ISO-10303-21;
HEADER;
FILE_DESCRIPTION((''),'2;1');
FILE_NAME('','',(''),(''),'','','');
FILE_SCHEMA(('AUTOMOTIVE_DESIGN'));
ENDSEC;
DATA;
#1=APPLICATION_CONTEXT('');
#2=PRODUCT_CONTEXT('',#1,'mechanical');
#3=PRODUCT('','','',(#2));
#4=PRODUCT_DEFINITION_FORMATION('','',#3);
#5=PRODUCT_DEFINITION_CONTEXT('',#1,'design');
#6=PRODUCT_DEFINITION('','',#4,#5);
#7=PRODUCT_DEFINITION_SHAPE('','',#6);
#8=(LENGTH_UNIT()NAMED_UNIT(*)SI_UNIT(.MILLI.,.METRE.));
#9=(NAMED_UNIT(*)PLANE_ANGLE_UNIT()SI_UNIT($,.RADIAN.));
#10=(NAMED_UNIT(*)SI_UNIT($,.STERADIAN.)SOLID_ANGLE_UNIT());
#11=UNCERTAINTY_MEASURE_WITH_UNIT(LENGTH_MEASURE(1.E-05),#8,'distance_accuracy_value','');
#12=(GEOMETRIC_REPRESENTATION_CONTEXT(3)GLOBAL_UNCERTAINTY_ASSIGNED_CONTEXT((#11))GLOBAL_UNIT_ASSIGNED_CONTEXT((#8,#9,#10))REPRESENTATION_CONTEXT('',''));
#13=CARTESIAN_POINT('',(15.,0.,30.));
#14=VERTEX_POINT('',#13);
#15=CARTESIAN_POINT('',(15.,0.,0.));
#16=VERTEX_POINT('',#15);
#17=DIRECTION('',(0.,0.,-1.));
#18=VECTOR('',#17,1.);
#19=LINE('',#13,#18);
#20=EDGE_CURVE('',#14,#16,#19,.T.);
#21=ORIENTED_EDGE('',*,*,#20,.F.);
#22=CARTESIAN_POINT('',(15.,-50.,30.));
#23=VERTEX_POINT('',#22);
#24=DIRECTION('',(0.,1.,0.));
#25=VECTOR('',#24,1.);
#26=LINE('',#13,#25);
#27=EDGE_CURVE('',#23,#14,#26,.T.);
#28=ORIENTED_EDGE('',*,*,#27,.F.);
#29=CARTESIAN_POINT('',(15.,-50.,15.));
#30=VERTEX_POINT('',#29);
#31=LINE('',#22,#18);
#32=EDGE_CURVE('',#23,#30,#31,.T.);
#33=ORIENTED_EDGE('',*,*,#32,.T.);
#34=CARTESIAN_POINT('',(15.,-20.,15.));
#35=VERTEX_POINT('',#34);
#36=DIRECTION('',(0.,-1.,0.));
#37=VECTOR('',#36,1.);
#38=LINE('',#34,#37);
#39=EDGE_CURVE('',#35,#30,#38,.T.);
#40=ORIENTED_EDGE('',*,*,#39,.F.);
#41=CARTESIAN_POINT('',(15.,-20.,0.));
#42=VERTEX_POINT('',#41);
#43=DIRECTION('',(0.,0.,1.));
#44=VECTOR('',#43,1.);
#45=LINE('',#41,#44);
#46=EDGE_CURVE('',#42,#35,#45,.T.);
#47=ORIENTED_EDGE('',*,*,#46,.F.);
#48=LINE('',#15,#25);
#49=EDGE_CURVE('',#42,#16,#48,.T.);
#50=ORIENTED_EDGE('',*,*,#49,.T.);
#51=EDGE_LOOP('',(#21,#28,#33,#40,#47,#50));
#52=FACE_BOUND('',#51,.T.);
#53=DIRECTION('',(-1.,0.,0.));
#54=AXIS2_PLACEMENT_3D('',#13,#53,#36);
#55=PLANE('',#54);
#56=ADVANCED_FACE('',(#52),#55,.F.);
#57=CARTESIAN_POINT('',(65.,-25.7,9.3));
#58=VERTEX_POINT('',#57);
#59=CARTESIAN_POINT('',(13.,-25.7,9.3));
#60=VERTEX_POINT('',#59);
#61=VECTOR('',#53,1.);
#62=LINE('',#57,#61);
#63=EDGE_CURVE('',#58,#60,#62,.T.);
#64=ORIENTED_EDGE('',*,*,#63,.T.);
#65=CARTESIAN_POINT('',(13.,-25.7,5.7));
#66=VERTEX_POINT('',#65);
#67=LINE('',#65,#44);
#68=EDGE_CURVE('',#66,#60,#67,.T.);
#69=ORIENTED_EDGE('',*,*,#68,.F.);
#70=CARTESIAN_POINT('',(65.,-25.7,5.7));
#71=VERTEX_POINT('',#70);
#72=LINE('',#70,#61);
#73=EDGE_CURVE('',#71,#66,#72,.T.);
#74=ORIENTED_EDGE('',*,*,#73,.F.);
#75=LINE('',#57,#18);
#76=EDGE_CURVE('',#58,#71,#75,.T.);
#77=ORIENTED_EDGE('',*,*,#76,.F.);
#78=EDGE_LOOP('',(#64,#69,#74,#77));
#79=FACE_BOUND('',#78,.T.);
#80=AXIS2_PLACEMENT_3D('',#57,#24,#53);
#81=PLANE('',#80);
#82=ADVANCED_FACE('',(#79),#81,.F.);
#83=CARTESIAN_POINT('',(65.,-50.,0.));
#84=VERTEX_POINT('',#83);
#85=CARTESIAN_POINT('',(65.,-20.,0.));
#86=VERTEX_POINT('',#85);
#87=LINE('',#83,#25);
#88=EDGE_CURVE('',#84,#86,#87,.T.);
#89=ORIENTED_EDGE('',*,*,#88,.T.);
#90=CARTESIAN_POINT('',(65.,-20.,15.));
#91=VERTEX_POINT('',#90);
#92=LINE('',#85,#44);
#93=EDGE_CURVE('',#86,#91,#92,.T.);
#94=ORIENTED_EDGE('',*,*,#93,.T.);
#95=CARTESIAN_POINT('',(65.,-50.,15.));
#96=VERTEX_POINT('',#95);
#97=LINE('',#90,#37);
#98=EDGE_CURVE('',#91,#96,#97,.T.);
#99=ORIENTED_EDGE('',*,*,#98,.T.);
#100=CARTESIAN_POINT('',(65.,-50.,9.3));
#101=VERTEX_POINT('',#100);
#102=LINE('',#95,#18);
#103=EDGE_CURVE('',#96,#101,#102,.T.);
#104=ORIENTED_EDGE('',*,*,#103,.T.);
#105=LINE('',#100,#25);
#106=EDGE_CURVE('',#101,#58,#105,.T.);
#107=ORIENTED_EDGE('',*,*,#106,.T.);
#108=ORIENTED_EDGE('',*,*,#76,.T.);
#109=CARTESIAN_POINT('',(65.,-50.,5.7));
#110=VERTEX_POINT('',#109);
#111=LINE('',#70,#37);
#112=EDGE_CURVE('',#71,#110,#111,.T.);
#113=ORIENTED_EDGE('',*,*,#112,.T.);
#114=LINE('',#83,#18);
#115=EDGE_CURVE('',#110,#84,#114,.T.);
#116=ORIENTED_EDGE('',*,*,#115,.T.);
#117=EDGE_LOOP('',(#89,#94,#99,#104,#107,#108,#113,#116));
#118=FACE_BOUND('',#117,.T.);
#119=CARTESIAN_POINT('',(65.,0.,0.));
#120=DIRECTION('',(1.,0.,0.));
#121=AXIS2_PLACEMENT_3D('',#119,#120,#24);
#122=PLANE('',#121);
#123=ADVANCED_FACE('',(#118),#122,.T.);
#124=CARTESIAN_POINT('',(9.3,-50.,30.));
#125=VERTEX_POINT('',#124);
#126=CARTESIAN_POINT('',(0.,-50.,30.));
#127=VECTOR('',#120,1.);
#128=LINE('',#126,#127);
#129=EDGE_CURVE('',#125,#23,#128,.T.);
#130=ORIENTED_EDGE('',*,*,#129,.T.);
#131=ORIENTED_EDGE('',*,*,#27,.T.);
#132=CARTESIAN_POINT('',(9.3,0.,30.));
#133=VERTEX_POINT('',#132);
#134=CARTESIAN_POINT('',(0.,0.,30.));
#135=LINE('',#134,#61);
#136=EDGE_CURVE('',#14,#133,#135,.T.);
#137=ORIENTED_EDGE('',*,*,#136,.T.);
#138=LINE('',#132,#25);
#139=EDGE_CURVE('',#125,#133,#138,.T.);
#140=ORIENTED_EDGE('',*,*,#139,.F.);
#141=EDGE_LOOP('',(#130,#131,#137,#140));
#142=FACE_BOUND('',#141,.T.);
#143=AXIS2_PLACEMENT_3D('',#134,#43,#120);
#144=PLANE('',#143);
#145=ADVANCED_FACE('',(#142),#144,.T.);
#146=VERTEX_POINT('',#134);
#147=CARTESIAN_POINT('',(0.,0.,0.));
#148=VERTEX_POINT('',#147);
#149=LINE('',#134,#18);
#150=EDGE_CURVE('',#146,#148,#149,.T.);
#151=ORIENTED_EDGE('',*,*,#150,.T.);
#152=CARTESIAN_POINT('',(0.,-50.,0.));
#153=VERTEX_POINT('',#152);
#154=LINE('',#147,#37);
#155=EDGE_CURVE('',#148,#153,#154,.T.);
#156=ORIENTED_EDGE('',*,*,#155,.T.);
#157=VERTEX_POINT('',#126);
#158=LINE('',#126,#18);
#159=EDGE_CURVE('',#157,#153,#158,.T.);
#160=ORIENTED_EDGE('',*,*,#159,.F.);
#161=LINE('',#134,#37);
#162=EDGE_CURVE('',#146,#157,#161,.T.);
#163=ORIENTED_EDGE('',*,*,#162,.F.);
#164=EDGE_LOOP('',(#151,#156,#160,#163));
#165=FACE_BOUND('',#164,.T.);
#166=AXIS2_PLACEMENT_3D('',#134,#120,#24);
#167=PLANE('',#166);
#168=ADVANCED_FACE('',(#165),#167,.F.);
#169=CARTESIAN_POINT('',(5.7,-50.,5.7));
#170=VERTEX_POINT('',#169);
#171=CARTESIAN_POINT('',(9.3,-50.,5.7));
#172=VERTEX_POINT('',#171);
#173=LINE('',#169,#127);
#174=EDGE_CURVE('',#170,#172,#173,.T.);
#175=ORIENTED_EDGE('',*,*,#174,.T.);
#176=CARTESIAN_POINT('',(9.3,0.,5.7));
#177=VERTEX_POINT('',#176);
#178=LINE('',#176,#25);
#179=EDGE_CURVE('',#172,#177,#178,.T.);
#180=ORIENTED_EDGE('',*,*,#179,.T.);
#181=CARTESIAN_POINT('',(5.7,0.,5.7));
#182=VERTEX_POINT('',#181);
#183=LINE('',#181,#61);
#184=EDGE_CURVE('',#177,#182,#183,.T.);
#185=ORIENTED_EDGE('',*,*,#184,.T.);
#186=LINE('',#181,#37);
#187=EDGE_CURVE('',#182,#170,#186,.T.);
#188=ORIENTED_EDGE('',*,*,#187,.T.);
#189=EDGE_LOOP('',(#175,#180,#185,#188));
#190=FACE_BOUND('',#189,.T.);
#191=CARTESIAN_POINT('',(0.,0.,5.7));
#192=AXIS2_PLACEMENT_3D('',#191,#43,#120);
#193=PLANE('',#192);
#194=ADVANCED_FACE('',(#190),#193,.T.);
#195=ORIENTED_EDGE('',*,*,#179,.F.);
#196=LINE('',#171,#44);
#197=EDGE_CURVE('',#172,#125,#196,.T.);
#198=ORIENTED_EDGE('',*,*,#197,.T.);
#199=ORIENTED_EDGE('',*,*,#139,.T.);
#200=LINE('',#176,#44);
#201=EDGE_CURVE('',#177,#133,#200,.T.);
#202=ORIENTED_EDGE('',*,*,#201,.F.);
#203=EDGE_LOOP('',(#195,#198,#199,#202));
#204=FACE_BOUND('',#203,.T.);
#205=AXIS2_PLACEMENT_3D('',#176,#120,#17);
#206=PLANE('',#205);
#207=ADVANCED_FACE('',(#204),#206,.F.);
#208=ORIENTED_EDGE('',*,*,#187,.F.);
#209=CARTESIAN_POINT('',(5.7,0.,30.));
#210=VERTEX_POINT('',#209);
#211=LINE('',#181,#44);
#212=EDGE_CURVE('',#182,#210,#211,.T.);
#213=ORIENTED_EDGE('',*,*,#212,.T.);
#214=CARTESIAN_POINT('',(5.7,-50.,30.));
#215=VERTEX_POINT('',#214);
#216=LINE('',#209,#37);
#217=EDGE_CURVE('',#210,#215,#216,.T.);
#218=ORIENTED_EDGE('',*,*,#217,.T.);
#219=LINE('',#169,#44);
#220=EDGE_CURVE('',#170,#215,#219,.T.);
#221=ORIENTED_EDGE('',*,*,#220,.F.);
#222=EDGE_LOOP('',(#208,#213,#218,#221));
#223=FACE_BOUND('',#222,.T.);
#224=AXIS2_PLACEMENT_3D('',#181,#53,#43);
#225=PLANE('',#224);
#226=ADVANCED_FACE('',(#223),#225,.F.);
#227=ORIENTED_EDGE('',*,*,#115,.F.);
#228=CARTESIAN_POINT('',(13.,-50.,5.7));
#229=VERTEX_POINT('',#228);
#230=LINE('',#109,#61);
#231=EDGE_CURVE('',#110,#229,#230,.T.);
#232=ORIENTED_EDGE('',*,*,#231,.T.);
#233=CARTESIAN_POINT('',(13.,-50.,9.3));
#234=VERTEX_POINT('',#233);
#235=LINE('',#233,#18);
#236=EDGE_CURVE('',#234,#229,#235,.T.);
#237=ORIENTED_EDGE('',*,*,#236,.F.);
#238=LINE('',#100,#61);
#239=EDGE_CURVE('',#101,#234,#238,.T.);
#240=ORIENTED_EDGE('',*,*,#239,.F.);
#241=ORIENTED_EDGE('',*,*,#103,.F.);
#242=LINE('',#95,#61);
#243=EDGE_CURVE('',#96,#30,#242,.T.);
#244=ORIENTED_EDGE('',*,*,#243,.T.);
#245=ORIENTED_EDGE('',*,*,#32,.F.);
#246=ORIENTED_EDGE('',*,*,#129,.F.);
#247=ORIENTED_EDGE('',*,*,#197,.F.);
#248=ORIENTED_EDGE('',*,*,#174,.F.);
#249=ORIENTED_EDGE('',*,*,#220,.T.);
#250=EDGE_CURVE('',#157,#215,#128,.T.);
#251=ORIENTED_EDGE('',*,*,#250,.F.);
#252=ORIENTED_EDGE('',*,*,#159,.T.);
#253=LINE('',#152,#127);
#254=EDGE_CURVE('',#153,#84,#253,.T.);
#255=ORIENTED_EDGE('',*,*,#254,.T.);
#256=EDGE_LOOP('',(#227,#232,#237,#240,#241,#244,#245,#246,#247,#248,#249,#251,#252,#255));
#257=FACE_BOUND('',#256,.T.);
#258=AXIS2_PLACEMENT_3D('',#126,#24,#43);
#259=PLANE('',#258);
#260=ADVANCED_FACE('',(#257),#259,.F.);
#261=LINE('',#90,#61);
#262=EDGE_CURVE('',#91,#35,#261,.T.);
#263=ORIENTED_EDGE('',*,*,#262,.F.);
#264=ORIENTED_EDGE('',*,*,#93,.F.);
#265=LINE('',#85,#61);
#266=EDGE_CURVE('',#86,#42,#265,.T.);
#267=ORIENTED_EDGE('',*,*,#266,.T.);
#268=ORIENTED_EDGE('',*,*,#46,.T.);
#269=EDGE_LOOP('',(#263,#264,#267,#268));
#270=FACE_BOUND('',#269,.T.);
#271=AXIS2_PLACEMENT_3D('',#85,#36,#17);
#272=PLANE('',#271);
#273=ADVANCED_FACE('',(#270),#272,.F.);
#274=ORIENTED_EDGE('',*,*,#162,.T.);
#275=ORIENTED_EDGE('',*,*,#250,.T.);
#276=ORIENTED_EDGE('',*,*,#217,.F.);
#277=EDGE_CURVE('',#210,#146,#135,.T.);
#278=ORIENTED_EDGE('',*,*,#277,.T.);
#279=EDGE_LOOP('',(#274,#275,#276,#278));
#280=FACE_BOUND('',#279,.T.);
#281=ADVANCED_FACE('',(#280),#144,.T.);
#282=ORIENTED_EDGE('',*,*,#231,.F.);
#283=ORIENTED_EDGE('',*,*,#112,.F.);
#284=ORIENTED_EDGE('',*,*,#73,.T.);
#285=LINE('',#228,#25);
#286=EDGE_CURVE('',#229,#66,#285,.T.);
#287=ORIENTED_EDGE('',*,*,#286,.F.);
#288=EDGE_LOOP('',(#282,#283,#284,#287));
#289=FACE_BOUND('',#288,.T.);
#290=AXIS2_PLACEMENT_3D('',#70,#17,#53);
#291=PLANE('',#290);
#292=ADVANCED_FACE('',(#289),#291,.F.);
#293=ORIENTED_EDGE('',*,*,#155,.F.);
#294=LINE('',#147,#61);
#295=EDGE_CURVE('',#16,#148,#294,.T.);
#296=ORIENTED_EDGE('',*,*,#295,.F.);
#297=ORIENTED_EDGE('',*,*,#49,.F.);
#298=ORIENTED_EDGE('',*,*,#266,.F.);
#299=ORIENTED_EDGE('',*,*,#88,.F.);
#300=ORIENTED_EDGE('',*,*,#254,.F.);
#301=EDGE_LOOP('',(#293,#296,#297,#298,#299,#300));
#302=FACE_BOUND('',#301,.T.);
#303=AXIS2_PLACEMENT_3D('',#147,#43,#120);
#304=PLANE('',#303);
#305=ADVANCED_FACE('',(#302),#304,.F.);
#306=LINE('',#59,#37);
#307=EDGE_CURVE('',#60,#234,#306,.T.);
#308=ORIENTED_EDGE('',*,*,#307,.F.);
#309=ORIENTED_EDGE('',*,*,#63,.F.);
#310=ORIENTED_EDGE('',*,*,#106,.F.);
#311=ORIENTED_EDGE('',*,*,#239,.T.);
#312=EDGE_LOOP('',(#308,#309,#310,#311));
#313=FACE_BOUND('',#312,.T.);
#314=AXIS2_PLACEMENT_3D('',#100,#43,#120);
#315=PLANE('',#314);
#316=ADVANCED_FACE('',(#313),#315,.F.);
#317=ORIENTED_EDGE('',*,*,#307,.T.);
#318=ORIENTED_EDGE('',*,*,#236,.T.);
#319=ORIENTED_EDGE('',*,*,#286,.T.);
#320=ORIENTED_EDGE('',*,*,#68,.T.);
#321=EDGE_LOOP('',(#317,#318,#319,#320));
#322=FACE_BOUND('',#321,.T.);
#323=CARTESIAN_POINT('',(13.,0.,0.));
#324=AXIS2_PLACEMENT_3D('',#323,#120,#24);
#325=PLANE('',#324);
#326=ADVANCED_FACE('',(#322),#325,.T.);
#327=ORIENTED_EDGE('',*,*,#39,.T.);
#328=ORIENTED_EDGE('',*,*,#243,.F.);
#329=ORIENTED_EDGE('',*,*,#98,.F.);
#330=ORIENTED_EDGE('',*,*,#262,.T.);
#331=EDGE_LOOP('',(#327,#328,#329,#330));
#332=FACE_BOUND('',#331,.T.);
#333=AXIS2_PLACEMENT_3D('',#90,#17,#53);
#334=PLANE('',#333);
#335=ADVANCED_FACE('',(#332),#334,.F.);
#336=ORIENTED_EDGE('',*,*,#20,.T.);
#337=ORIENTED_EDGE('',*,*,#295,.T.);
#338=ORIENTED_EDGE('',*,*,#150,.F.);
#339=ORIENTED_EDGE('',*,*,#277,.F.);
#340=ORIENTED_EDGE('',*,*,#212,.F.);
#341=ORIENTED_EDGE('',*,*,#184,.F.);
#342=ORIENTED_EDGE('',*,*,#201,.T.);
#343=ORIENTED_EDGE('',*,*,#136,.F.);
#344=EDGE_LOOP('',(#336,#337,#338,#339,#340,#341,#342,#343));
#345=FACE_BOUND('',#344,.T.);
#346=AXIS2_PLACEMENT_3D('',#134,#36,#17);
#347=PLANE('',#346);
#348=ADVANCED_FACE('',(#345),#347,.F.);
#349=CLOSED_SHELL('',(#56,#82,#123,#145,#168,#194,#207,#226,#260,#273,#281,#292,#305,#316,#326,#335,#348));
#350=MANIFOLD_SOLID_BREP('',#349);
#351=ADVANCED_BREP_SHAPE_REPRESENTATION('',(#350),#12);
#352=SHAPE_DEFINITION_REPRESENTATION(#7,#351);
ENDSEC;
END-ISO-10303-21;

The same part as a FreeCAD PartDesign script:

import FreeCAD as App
import Part
import Sketcher

V = App.Vector


def add_polygon(sketch, points):
    """Adds a closed chain of lines whose ends are joined by coincident constraints."""
    first, n = sketch.GeometryCount, len(points)
    for a, b in zip(points, points[1:] + points[:1]):
        sketch.addGeometry(Part.LineSegment(App.Vector(*a, 0), App.Vector(*b, 0)), False)
    for i in range(n):
        sketch.addConstraint(Sketcher.Constraint("Coincident", first + i, 2, first + (i + 1) % n, 1))

doc = App.newDocument("Part")
body = doc.addObject("PartDesign::Body", "Body")

sketch1 = body.newObject("Sketcher::SketchObject", "Sketch")
sketch1.AttachmentSupport = (doc.getObject("XY_Plane"), [""])
sketch1.MapMode = "FlatFace"
add_polygon(sketch1, [(0, 0), (0, -50), (15, -50), (15, 0)])
sketch1.addConstraint(Sketcher.Constraint("Vertical", 0))
sketch1.addConstraint(Sketcher.Constraint("Horizontal", 1))
sketch1.addConstraint(Sketcher.Constraint("Vertical", 2))
sketch1.addConstraint(Sketcher.Constraint("Horizontal", 3))
sketch1.addConstraint(Sketcher.Constraint("Coincident", 3, 2, -1, 1))
sketch1.addConstraint(Sketcher.Constraint("DistanceX", 1, 1, 1, 2, 15.0))
sketch1.addConstraint(Sketcher.Constraint("DistanceY", 0, 2, 0, 1, 50.0))
pad1 = body.newObject("PartDesign::Pad", "Pad")
pad1.Profile = sketch1
pad1.Length = 30

sketch2 = body.newObject("Sketcher::SketchObject", "Sketch001")
sketch2.AttachmentSupport = (doc.getObject("XY_Plane"), [""])
sketch2.MapMode = "FlatFace"
sketch2.AttachmentOffset = App.Placement(V(0, 0, 30), App.Rotation())
add_polygon(sketch2, [(5.7, 0), (5.7, -50), (9.3, -50), (9.3, 0)])
sketch2.addConstraint(Sketcher.Constraint("Vertical", 0))
sketch2.addConstraint(Sketcher.Constraint("Horizontal", 1))
sketch2.addConstraint(Sketcher.Constraint("Vertical", 2))
sketch2.addConstraint(Sketcher.Constraint("Horizontal", 3))
sketch2.addConstraint(Sketcher.Constraint("PointOnObject", 2, 2, -1))
sketch2.addConstraint(Sketcher.Constraint("DistanceY", 0, 2, 0, 1, 50.0))
sketch2.addConstraint(Sketcher.Constraint("DistanceX", 1, 1, 1, 2, 3.6))
sketch2.addConstraint(Sketcher.Constraint("DistanceX", -1, 1, 0, 2, 5.7))
pocket1 = body.newObject("PartDesign::Pocket", "Pocket")
pocket1.Profile = sketch2
pocket1.Length = 24.3

sketch3 = body.newObject("Sketcher::SketchObject", "Sketch002")
sketch3.AttachmentSupport = (doc.getObject("YZ_Plane"), [""])
sketch3.MapMode = "FlatFace"
sketch3.AttachmentOffset = App.Placement(V(0, 0, 15), App.Rotation())
add_polygon(sketch3, [(-50, 0), (-20, 0), (-20, 15), (-50, 15), (-50, 9.3), (-25.7, 9.3), (-25.7, 5.7), (-50, 5.7)])
sketch3.addConstraint(Sketcher.Constraint("Horizontal", 0))
sketch3.addConstraint(Sketcher.Constraint("Vertical", 1))
sketch3.addConstraint(Sketcher.Constraint("Horizontal", 2))
sketch3.addConstraint(Sketcher.Constraint("Vertical", 3))
sketch3.addConstraint(Sketcher.Constraint("Horizontal", 4))
sketch3.addConstraint(Sketcher.Constraint("Vertical", 5))
sketch3.addConstraint(Sketcher.Constraint("Horizontal", 6))
sketch3.addConstraint(Sketcher.Constraint("Vertical", 7))
sketch3.addConstraint(Sketcher.Constraint("PointOnObject", 0, 2, -1))
sketch3.addConstraint(Sketcher.Constraint("Vertical", 3, 2, 6, 2))
sketch3.addConstraint(Sketcher.Constraint("Equal", 3, 7))
sketch3.addConstraint(Sketcher.Constraint("DistanceX", 0, 1, 0, 2, 30.0))
sketch3.addConstraint(Sketcher.Constraint("DistanceY", 1, 1, 1, 2, 15.0))
sketch3.addConstraint(Sketcher.Constraint("DistanceX", 4, 1, 4, 2, 24.3))
sketch3.addConstraint(Sketcher.Constraint("DistanceY", 3, 2, 3, 1, 5.7))
sketch3.addConstraint(Sketcher.Constraint("DistanceX", 0, 2, -1, 1, 20.0))
pad2 = body.newObject("PartDesign::Pad", "Pad001")
pad2.Profile = sketch3
pad2.Length = 50

sketch4 = body.newObject("Sketcher::SketchObject", "Sketch003")
sketch4.AttachmentSupport = (doc.getObject("YZ_Plane"), [""])
sketch4.MapMode = "FlatFace"
sketch4.AttachmentOffset = App.Placement(V(0, 0, 15), App.Rotation())
add_polygon(sketch4, [(-25.7, 9.3), (-50, 9.3), (-50, 5.7), (-25.7, 5.7)])
sketch4.addConstraint(Sketcher.Constraint("Horizontal", 0))
sketch4.addConstraint(Sketcher.Constraint("Vertical", 1))
sketch4.addConstraint(Sketcher.Constraint("Horizontal", 2))
sketch4.addConstraint(Sketcher.Constraint("Vertical", 3))
sketch4.addConstraint(Sketcher.Constraint("DistanceX", 0, 2, 0, 1, 24.3))
sketch4.addConstraint(Sketcher.Constraint("DistanceY", 1, 2, 1, 1, 3.6))
sketch4.addConstraint(Sketcher.Constraint("DistanceX", 0, 2, -1, 1, 50.0))
sketch4.addConstraint(Sketcher.Constraint("DistanceY", -1, 1, 0, 2, 9.3))
pocket2 = body.newObject("PartDesign::Pocket", "Pocket001")
pocket2.Profile = sketch4
pocket2.Length = 2

doc.recompute()
